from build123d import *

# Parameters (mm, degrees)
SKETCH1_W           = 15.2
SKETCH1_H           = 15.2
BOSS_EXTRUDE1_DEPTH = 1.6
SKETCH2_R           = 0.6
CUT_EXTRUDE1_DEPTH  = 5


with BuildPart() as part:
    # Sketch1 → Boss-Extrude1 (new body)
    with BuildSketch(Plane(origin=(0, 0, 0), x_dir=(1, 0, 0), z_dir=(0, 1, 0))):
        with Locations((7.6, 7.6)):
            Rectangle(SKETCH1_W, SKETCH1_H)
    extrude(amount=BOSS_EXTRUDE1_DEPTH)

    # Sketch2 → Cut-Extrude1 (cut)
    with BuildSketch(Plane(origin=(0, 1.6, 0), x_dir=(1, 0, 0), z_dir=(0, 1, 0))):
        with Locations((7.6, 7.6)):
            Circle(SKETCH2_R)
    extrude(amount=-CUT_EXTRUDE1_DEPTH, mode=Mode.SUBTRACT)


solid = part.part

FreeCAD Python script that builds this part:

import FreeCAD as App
import Part
import Sketcher
from FreeCAD import Vector
Q = App.Units.Quantity

doc = App.newDocument("Part")
body = doc.addObject("PartDesign::Body", "Body")

# Sketch on XZ plane
sketch1 = body.newObject("Sketcher::SketchObject", "Sketch")
sketch1.AttachmentSupport = (doc.getObject("XZ_Plane"), [""])
sketch1.MapMode = "FlatFace"
sketch1.addGeometry(Part.LineSegment(Vector(0, -15.2, 0), Vector(0, 0, 0)), False)
sketch1.addGeometry(Part.LineSegment(Vector(0, 0, 0), Vector(15.2, 0, 0)), False)
sketch1.addGeometry(Part.LineSegment(Vector(15.2, 0, 0), Vector(15.2, -15.2, 0)), False)
sketch1.addGeometry(Part.LineSegment(Vector(15.2, -15.2, 0), Vector(0, -15.2, 0)), False)
sketch1.addConstraint(Sketcher.Constraint("Coincident", 0, 2, 1, 1))
sketch1.addConstraint(Sketcher.Constraint("Coincident", 1, 2, 2, 1))
sketch1.addConstraint(Sketcher.Constraint("Coincident", 2, 2, 3, 1))
sketch1.addConstraint(Sketcher.Constraint("Coincident", 3, 2, 0, 1))
sketch1.addConstraint(Sketcher.Constraint("Vertical", 0))
sketch1.addConstraint(Sketcher.Constraint("Horizontal", 1))
sketch1.addConstraint(Sketcher.Constraint("Vertical", 2))
sketch1.addConstraint(Sketcher.Constraint("Horizontal", 3))
sketch1.addConstraint(Sketcher.Constraint("Coincident", 0, 2, -1, 1))
sketch1.addConstraint(Sketcher.Constraint("Equal", 3, 0))
sketch1.addConstraint(Sketcher.Constraint("DistanceX", 1, 1, 1, 2, Q("15.2 mm")))
pad1 = body.newObject("PartDesign::Pad", "Pad")
pad1.Profile = sketch1
pad1.Length = 1.6
pad1.Reversed = True

# Sketch on XZ plane
sketch2 = body.newObject("Sketcher::SketchObject", "Sketch001")
sketch2.AttachmentSupport = (doc.getObject("XZ_Plane"), [""])
sketch2.MapMode = "FlatFace"
sketch2.AttachmentOffset = App.Placement(Vector(0, 0, -1.6), App.Rotation())
sketch2.addGeometry(Part.Circle(Vector(7.6, -7.6, 0), Vector(0, 0, 1), 0.6), False)
sketch2.addConstraint(Sketcher.Constraint("Diameter", 0, Q("1.2 mm")))
sketch2.addConstraint(Sketcher.Constraint("DistanceX", -1, 1, 0, 3, Q("7.6 mm")))
sketch2.addConstraint(Sketcher.Constraint("DistanceY", 0, 3, -1, 1, Q("7.6 mm")))
pocket1 = body.newObject("PartDesign::Pocket", "Pocket")
pocket1.Profile = sketch2
pocket1.Length = 5
pocket1.Reversed = True

doc.recompute()
